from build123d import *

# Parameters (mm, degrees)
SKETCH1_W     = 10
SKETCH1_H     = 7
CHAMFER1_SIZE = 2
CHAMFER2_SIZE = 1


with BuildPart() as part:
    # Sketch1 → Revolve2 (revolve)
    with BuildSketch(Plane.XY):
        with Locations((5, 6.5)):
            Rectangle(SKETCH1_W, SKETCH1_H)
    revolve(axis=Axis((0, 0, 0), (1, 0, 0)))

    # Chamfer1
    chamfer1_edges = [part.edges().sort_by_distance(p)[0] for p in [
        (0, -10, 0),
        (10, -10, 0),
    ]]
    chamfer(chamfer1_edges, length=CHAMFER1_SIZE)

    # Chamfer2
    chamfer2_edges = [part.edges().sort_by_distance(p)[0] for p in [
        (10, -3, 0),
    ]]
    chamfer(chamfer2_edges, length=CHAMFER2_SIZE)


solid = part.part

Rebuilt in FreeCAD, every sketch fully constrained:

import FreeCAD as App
import Part
import Sketcher

V = App.Vector
Q = App.Units.Quantity


def edges_at(feature, points):
    """Names of the edges that pass closest to the given points."""
    edges = feature.Shape.Edges
    near = lambda p: min(range(len(edges)), key=lambda i: edges[i].distToShape(Part.Vertex(*p))[0])
    return sorted({f"Edge{near(p) + 1}" for p in points})

doc = App.newDocument("Part")
body = doc.addObject("PartDesign::Body", "Body")

sketch1 = body.newObject("Sketcher::SketchObject", "Sketch")
sketch1.AttachmentSupport = (doc.getObject("XY_Plane"), [""])
sketch1.MapMode = "FlatFace"
sketch1.addGeometry(Part.LineSegment(V(0, 10, 0), V(0, 3, 0)), False)
sketch1.addGeometry(Part.LineSegment(V(0, 3, 0), V(10, 3, 0)), False)
sketch1.addGeometry(Part.LineSegment(V(10, 3, 0), V(10, 10, 0)), False)
sketch1.addGeometry(Part.LineSegment(V(10, 10, 0), V(0, 10, 0)), False)
sketch1.addConstraint(Sketcher.Constraint("Coincident", 0, 2, 1, 1))
sketch1.addConstraint(Sketcher.Constraint("Coincident", 1, 2, 2, 1))
sketch1.addConstraint(Sketcher.Constraint("Coincident", 2, 2, 3, 1))
sketch1.addConstraint(Sketcher.Constraint("Coincident", 3, 2, 0, 1))
sketch1.addConstraint(Sketcher.Constraint("Vertical", 0))
sketch1.addConstraint(Sketcher.Constraint("Horizontal", 1))
sketch1.addConstraint(Sketcher.Constraint("Vertical", 2))
sketch1.addConstraint(Sketcher.Constraint("Horizontal", 3))
sketch1.addConstraint(Sketcher.Constraint("PointOnObject", 0, 2, -2))
sketch1.addConstraint(Sketcher.Constraint("DistanceX", 1, 1, 1, 2, Q("10 mm")))
sketch1.addConstraint(Sketcher.Constraint("DistanceY", 0, 2, 0, 1, Q("7 mm")))
sketch1.addConstraint(Sketcher.Constraint("DistanceY", -1, 1, 0, 2, Q("3 mm")))
revolution = body.newObject("PartDesign::Revolution", "Revolution")
revolution.Profile = sketch1
revolution.ReferenceAxis = (sketch1, ["H_Axis"])
revolution.Angle = 360
doc.recompute()

chamfer = body.newObject("PartDesign::Chamfer", "Chamfer")
chamfer.Base = (revolution, edges_at(revolution, [(0, -10, 0), (10, -10, 0)]))
chamfer.Size = 2
doc.recompute()

chamfer2 = body.newObject("PartDesign::Chamfer", "Chamfer001")
chamfer2.Base = (chamfer, edges_at(chamfer, [(10, -3, 0)]))
chamfer2.Size = 1

doc.recompute()
